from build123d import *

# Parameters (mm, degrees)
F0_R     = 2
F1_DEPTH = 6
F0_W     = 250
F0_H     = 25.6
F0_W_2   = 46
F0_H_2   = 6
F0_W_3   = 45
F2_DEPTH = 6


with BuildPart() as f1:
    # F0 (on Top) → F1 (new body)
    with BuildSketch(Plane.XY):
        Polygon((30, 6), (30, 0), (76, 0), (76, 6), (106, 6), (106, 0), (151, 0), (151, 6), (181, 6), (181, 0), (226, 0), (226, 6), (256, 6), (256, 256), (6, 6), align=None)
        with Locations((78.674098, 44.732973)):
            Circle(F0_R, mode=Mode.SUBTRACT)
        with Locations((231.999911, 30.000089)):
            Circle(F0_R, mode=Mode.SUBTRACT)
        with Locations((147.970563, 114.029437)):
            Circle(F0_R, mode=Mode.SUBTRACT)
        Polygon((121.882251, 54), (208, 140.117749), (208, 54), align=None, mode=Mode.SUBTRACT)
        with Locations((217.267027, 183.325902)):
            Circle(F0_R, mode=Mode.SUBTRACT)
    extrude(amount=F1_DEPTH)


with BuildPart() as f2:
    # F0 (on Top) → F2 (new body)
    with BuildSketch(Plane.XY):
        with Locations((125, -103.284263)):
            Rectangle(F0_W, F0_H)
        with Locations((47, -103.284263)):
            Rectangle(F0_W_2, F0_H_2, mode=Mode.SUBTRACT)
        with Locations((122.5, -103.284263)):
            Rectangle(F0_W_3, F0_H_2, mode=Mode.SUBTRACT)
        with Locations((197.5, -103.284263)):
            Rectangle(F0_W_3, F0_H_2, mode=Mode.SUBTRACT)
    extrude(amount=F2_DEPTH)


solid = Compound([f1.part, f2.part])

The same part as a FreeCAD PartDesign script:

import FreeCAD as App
import Part
import Sketcher

V = App.Vector


def add_polygon(sketch, points):
    """Adds a closed chain of lines whose ends are joined by coincident constraints."""
    first, n = sketch.GeometryCount, len(points)
    for a, b in zip(points, points[1:] + points[:1]):
        sketch.addGeometry(Part.LineSegment(App.Vector(*a, 0), App.Vector(*b, 0)), False)
    for i in range(n):
        sketch.addConstraint(Sketcher.Constraint("Coincident", first + i, 2, first + (i + 1) % n, 1))

doc = App.newDocument("Part")
body = doc.addObject("PartDesign::Body", "Body")

# Sketch on XY plane
sketch1 = body.newObject("Sketcher::SketchObject", "Sketch")
sketch1.AttachmentSupport = (doc.getObject("XY_Plane"), [""])
sketch1.MapMode = "FlatFace"
add_polygon(sketch1, [(30, 6), (30, 0), (76, 0), (76, 6), (106, 6), (106, 0), (151, 0), (151, 6), (181, 6), (181, 0), (226, 0), (226, 6), (256, 6), (256, 256), (6, 6)])  # lines 0-14
sketch1.addGeometry(Part.Circle(V(78.7, 44.7, 0), V(0, 0, 1), 2), False)  # 15
sketch1.addGeometry(Part.Circle(V(232, 30, 0), V(0, 0, 1), 2), False)  # 16
add_polygon(sketch1, [(208, 54), (121.9, 54), (208, 140.1)])  # lines 17-19
sketch1.addGeometry(Part.Circle(V(148, 114, 0), V(0, 0, 1), 2), False)  # 20
sketch1.addGeometry(Part.Circle(V(217.3, 183.3, 0), V(0, 0, 1), 2), False)  # 21
sketch1.addConstraint([
    Sketcher.Constraint("Vertical", 0),
    Sketcher.Constraint("Horizontal", 1),
    Sketcher.Constraint("Vertical", 2),
    Sketcher.Constraint("Horizontal", 3),
    Sketcher.Constraint("Vertical", 4),
    Sketcher.Constraint("Horizontal", 5),
    Sketcher.Constraint("Vertical", 6),
    Sketcher.Constraint("Horizontal", 7),
    Sketcher.Constraint("Vertical", 8),
    Sketcher.Constraint("Horizontal", 9),
    Sketcher.Constraint("Vertical", 10),
    Sketcher.Constraint("Horizontal", 11),
    Sketcher.Constraint("Vertical", 12),
    Sketcher.Constraint("Horizontal", 14),
    Sketcher.Constraint("Horizontal", 17),
    Sketcher.Constraint("Vertical", 19),
    Sketcher.Constraint("Equal", 15, 16),
    Sketcher.Constraint("Equal", 16, 20),
    Sketcher.Constraint("Equal", 20, 21),
    Sketcher.Constraint("PointOnObject", 0, 2, -1),
    Sketcher.Constraint("PointOnObject", 4, 2, -1),
    Sketcher.Constraint("PointOnObject", 8, 2, -1),
    Sketcher.Constraint("Parallel", 13, 18),
    Sketcher.Constraint("Horizontal", 3, 2, 6, 2),
    Sketcher.Constraint("Horizontal", 7, 2, 10, 2),
    Sketcher.Constraint("Horizontal", 11, 2, 13, 2),
    Sketcher.Constraint("Equal", 3, 7),
    Sketcher.Constraint("Equal", 5, 9),
    Sketcher.Constraint("Equal", 7, 11),
    Sketcher.Constraint("Equal", 17, 19),
    Sketcher.Constraint("Diameter", 15, 4.0),
    Sketcher.Constraint("DistanceX", 1, 1, 1, 2, 46.0),
    Sketcher.Constraint("DistanceX", 3, 1, 3, 2, 30.0),
    Sketcher.Constraint("DistanceX", 5, 1, 5, 2, 45.0),
    Sketcher.Constraint("DistanceX", 14, 1, 14, 2, 24.0),
    Sketcher.Constraint("DistanceY", 0, 2, 0, 1, 6.0),
    Sketcher.Constraint("DistanceX", -1, 1, 0, 2, 30.0),
    Sketcher.Constraint("DistanceY", -1, 1, 17, 2, 54.0),
    Sketcher.Constraint("DistanceX", -1, 1, 18, 2, 208.0),
    Sketcher.Constraint("DistanceX", 17, 2, 17, 1, 86.117749),
    Sketcher.Constraint("DistanceX", -1, 1, 15, 3, 78.674098),
    Sketcher.Constraint("DistanceX", -1, 1, 16, 3, 231.999911),
    Sketcher.Constraint("DistanceY", -1, 1, 16, 3, 30.000089),
    Sketcher.Constraint("DistanceX", 20, 3, 16, 3, 84.029348),
    Sketcher.Constraint("DistanceY", 16, 3, 20, 3, 84.029348),
    Sketcher.Constraint("DistanceX", 15, 3, 21, 3, 138.592929),
    Sketcher.Constraint("DistanceY", 15, 3, 21, 3, 138.592929),
    Sketcher.Constraint("DistanceY", -1, 1, 15, 3, 44.732973),
])
pad1 = body.newObject("PartDesign::Pad", "Pad")
pad1.Profile = sketch1
pad1.Length = 6
body2 = doc.addObject("PartDesign::Body", "Body001")

# Sketch on XY plane
sketch2 = body2.newObject("Sketcher::SketchObject", "Sketch001")
sketch2.AttachmentSupport = (doc.getObject("XY_Plane001"), [""])
sketch2.MapMode = "FlatFace"
add_polygon(sketch2, [(0, -90), (0, -116), (250, -116), (250, -90)])  # lines 0-3
add_polygon(sketch2, [(70, -106), (24, -106), (24, -100), (70, -100)])  # lines 4-7
add_polygon(sketch2, [(145, -106), (100, -106), (100, -100), (145, -100)])  # lines 8-11
add_polygon(sketch2, [(220, -106), (175, -106), (175, -100), (220, -100)])  # lines 12-15
sketch2.addConstraint([
    Sketcher.Constraint("Vertical", 0),
    Sketcher.Constraint("Horizontal", 1),
    Sketcher.Constraint("Vertical", 2),
    Sketcher.Constraint("Horizontal", 3),
    Sketcher.Constraint("Horizontal", 4),
    Sketcher.Constraint("Vertical", 5),
    Sketcher.Constraint("Horizontal", 6),
    Sketcher.Constraint("Vertical", 7),
    Sketcher.Constraint("Horizontal", 8),
    Sketcher.Constraint("Vertical", 9),
    Sketcher.Constraint("Horizontal", 10),
    Sketcher.Constraint("Vertical", 11),
    Sketcher.Constraint("Horizontal", 12),
    Sketcher.Constraint("Vertical", 13),
    Sketcher.Constraint("Horizontal", 14),
    Sketcher.Constraint("Vertical", 15),
    Sketcher.Constraint("PointOnObject", 0, 2, -2),
    Sketcher.Constraint("Horizontal", 7, 2, 8, 2),
    Sketcher.Constraint("Horizontal", 6, 2, 9, 2),
    Sketcher.Constraint("Horizontal", 11, 2, 12, 2),
    Sketcher.Constraint("Horizontal", 10, 2, 13, 2),
    Sketcher.Constraint("Equal", 10, 12),
    Sketcher.Constraint("DistanceX", 1, 1, 1, 2, 250.0),
    Sketcher.Constraint("DistanceX", 4, 2, 4, 1, 46.0),
    Sketcher.Constraint("DistanceX", 8, 2, 8, 1, 45.0),
    Sketcher.Constraint("DistanceY", 5, 1, 5, 2, 6.0),
    Sketcher.Constraint("DistanceY", 0, 2, 0, 1, 25.6),
    Sketcher.Constraint("DistanceX", -1, 1, 4, 2, 24.0),
    Sketcher.Constraint("DistanceX", -1, 1, 8, 2, 100.0),
    Sketcher.Constraint("DistanceX", -1, 1, 12, 2, 175.0),
    Sketcher.Constraint("DistanceY", 0, 2, 4, 2, 9.8),
    Sketcher.Constraint("DistanceY", 0, 2, -1, 1, 116.084263),
])
pad2 = body2.newObject("PartDesign::Pad", "Pad001")
pad2.Profile = sketch2
pad2.Length = 6

doc.recompute()
